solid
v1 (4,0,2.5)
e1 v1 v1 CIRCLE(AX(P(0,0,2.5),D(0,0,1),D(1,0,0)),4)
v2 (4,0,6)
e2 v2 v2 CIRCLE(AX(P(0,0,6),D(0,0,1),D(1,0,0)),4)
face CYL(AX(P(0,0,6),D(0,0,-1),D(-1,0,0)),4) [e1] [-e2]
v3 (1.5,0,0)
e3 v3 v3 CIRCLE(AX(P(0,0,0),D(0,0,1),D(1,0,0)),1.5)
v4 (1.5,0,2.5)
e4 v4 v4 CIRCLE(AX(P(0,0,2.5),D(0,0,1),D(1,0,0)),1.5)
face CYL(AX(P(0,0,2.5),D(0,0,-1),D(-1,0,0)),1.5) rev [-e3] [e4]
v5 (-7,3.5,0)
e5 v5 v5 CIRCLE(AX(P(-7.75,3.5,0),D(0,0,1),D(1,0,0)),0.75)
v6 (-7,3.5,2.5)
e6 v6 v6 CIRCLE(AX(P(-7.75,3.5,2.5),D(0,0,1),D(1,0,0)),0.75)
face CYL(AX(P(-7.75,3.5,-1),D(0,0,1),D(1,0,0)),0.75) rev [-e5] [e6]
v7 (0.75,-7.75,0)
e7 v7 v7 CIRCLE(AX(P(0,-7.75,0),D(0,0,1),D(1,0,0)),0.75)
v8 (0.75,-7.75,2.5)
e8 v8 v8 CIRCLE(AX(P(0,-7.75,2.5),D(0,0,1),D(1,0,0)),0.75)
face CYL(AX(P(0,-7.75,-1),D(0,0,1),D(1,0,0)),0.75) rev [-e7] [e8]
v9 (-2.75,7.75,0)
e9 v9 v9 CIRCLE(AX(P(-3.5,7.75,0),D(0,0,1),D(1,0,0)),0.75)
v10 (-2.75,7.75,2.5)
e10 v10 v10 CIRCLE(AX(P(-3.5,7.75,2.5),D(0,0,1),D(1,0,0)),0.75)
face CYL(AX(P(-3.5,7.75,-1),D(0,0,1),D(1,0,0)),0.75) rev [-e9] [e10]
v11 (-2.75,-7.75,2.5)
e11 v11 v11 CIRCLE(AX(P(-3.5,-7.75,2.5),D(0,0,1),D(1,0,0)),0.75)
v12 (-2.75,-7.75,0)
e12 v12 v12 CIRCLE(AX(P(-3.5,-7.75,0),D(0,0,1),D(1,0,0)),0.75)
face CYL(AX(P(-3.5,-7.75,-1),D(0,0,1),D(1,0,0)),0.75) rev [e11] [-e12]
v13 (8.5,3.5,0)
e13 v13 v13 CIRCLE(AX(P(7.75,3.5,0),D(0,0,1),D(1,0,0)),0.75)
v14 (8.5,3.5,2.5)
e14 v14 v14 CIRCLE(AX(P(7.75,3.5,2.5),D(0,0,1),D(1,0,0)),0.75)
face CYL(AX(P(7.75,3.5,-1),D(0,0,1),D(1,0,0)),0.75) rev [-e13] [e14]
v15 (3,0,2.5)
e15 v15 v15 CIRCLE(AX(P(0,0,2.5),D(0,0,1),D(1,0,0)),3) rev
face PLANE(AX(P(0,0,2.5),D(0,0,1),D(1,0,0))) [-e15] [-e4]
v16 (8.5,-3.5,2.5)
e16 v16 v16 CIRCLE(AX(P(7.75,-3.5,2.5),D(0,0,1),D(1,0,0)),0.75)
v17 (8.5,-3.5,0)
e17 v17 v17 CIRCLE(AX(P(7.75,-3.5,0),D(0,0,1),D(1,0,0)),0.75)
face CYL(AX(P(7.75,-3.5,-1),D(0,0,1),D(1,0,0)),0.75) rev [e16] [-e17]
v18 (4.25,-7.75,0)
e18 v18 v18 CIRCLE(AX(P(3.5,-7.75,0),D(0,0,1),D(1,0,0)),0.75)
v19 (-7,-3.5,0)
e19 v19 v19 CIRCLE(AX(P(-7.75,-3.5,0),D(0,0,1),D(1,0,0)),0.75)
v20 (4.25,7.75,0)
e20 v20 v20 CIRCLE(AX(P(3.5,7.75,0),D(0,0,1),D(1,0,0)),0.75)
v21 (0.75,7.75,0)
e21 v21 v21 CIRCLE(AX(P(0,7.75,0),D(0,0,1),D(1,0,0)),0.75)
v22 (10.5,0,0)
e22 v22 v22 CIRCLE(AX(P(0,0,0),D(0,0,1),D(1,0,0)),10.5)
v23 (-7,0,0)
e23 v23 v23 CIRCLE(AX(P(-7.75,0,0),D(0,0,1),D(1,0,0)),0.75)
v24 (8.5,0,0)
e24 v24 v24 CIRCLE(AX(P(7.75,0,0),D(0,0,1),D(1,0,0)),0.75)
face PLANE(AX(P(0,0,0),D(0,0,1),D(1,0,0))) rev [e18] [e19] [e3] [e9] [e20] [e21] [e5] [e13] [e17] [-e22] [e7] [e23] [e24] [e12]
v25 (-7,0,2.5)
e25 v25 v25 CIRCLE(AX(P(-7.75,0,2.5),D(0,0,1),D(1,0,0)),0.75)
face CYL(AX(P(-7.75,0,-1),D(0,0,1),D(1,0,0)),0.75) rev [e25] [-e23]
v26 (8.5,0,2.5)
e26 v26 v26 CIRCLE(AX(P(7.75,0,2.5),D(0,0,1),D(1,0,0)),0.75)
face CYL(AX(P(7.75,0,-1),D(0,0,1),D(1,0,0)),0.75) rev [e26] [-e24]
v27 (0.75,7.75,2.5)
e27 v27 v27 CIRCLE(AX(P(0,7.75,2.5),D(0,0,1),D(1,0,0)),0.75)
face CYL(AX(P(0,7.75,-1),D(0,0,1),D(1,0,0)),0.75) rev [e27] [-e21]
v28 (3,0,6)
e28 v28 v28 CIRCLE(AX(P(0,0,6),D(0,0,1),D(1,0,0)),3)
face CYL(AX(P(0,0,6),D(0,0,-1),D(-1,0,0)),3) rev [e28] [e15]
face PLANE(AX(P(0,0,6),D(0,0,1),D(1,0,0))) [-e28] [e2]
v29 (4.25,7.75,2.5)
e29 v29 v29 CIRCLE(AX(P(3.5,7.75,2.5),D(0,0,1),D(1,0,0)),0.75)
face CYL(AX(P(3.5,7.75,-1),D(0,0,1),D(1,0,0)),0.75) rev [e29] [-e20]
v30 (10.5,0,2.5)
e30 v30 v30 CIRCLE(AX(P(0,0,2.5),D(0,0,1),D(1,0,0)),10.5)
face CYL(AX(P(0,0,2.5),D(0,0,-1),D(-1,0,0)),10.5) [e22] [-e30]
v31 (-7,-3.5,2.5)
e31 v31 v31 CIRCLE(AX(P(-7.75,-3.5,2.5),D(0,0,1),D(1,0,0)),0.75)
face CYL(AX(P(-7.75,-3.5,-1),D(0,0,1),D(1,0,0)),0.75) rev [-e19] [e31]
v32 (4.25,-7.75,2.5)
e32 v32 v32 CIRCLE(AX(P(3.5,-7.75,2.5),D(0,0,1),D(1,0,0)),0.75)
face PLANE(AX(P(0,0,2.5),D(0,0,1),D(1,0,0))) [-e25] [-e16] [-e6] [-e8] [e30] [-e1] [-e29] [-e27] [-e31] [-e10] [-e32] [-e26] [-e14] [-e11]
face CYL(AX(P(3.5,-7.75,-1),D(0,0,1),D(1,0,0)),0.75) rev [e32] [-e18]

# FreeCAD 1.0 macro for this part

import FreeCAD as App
import Part
import Sketcher
Q = App.Units.Quantity

doc = App.newDocument("Part")
params = doc.addObject("Spreadsheet::Sheet", "Params")
for row, (alias, value) in enumerate([
    ("sketch1_diameter", "21 mm"),
    ("sketch1_diameter2", "3 mm"),
    ("pad1_length", "2.5 mm"),
    ("sketch2_diameter", "8 mm"),
    ("sketch2_diameter2", "6 mm"),
    ("pad2_length", "3.5 mm"),
    ("sketch3_diameter", "1.5 mm"),
    ("pocket1_length", "3.5 mm"),
], start=1):
    params.set(f"A{row}", alias)
    params.set(f"B{row}", "=" + value)
    params.setAlias(f"B{row}", alias)

body = doc.addObject("PartDesign::Body", "Body")

sketch1 = body.newObject("Sketcher::SketchObject", "Sketch")
sketch1.AttachmentSupport = (doc.getObject("XY_Plane"), [""])
sketch1.MapMode = "FlatFace"
sketch1.addGeometry([
    Part.Circle(App.Vector(0, 0, 0), App.Vector(0, 0, 1), 10.5),
    Part.Circle(App.Vector(0, 0, 0), App.Vector(0, 0, 1), 1.5),
], False)
sketch1.addConstraint([
    Sketcher.Constraint("Coincident", 0, 3, -1, 1),
    Sketcher.Constraint("Coincident", 1, 3, -1, 1),
    Sketcher.Constraint("Diameter", 0, Q("21 mm")),
    Sketcher.Constraint("Diameter", 1, Q("3 mm")),
])
sketch1.setExpression("Constraints[2]", "Params.sketch1_diameter")
sketch1.setExpression("Constraints[3]", "Params.sketch1_diameter2")
pad1 = body.newObject("PartDesign::Pad", "Pad")
pad1.Profile = sketch1
pad1.setExpression("Length", "Params.pad1_length")

sketch2 = body.newObject("Sketcher::SketchObject", "Sketch001")
sketch2.AttachmentSupport = (doc.getObject("XY_Plane"), [""])
sketch2.MapMode = "FlatFace"
sketch2.AttachmentOffset = App.Placement(App.Vector(0, 0, 2.5), App.Rotation())
sketch2.addGeometry([
    Part.Circle(App.Vector(0, 0, 0), App.Vector(0, 0, 1), 4),
    Part.Circle(App.Vector(0, 0, 0), App.Vector(0, 0, 1), 3),
], False)
sketch2.addConstraint([
    Sketcher.Constraint("Coincident", 0, 3, -1, 1),
    Sketcher.Constraint("Coincident", 1, 3, -1, 1),
    Sketcher.Constraint("Diameter", 0, Q("8 mm")),
    Sketcher.Constraint("Diameter", 1, Q("6 mm")),
])
sketch2.setExpression("Constraints[2]", "Params.sketch2_diameter")
sketch2.setExpression("Constraints[3]", "Params.sketch2_diameter2")
pad2 = body.newObject("PartDesign::Pad", "Pad001")
pad2.Profile = sketch2
pad2.setExpression("Length", "Params.pad2_length")

sketch3 = body.newObject("Sketcher::SketchObject", "Sketch002")
sketch3.AttachmentSupport = (doc.getObject("XY_Plane"), [""])
sketch3.MapMode = "FlatFace"
sketch3.AttachmentOffset = App.Placement(App.Vector(0, 0, 2.5), App.Rotation())
sketch3.addGeometry([
    Part.Circle(App.Vector(-7.8, 0, 0), App.Vector(0, 0, 1), 0.8),
    Part.Circle(App.Vector(-7.8, 3.5, 0), App.Vector(0, 0, 1), 0.8),
    Part.Circle(App.Vector(-7.8, -3.5, 0), App.Vector(0, 0, 1), 0.8),
    Part.Circle(App.Vector(3.5, 7.8, 0), App.Vector(0, 0, 1), 0.8),
    Part.Circle(App.Vector(0, 7.8, 0), App.Vector(0, 0, 1), 0.8),
    Part.Circle(App.Vector(-3.5, 7.8, 0), App.Vector(0, 0, 1), 0.8),
    Part.Circle(App.Vector(7.8, -3.5, 0), App.Vector(0, 0, 1), 0.8),
    Part.Circle(App.Vector(7.8, 0, 0), App.Vector(0, 0, 1), 0.8),
    Part.Circle(App.Vector(7.8, 3.5, 0), App.Vector(0, 0, 1), 0.8),
    Part.Circle(App.Vector(-3.5, -7.8, 0), App.Vector(0, 0, 1), 0.8),
    Part.Circle(App.Vector(0, -7.8, 0), App.Vector(0, 0, 1), 0.8),
    Part.Circle(App.Vector(3.5, -7.8, 0), App.Vector(0, 0, 1), 0.8),
], False)
sketch3.addConstraint([
    Sketcher.Constraint("Equal", 0, 1),
    Sketcher.Constraint("Equal", 1, 2),
    Sketcher.Constraint("Equal", 2, 3),
    Sketcher.Constraint("Equal", 3, 4),
    Sketcher.Constraint("Equal", 4, 5),
    Sketcher.Constraint("Equal", 5, 6),
    Sketcher.Constraint("Equal", 6, 7),
    Sketcher.Constraint("Equal", 7, 8),
    Sketcher.Constraint("Equal", 8, 9),
    Sketcher.Constraint("Equal", 9, 10),
    Sketcher.Constraint("Equal", 10, 11),
    Sketcher.Constraint("Symmetric", 1, 3, 6, 3, -1, 1),
    Sketcher.Constraint("Symmetric", 0, 3, 7, 3, -1, 1),
    Sketcher.Constraint("Symmetric", 2, 3, 8, 3, -1, 1),
    Sketcher.Constraint("Symmetric", 3, 3, 9, 3, -1, 1),
    Sketcher.Constraint("Symmetric", 4, 3, 10, 3, -1, 1),
    Sketcher.Constraint("Symmetric", 5, 3, 11, 3, -1, 1),
    Sketcher.Constraint("Symmetric", 3, 3, 5, 3, -2),
    Sketcher.Constraint("Symmetric", 2, 3, 6, 3, -2),
    Sketcher.Constraint("PointOnObject", 0, 3, -1),
    Sketcher.Constraint("PointOnObject", 4, 3, -2),
    Sketcher.Constraint("Horizontal", 3, 3, 4, 3),
    Sketcher.Constraint("Vertical", 0, 3, 1, 3),
    Sketcher.Constraint("Diameter", 0, Q("1.5 mm")),
    Sketcher.Constraint("DistanceY", 2, 3, 1, 3, Q("7 mm")),
    Sketcher.Constraint("DistanceX", 5, 3, 3, 3, Q("7 mm")),
    Sketcher.Constraint("DistanceX", 2, 3, 6, 3, Q("15.5 mm")),
    Sketcher.Constraint("DistanceY", -1, 1, 3, 3, Q("7.75 mm")),
])
sketch3.setExpression("Constraints[23]", "Params.sketch3_diameter")
pocket1 = body.newObject("PartDesign::Pocket", "Pocket")
pocket1.Profile = sketch3
pocket1.setExpression("Length", "Params.pocket1_length")

doc.recompute()
